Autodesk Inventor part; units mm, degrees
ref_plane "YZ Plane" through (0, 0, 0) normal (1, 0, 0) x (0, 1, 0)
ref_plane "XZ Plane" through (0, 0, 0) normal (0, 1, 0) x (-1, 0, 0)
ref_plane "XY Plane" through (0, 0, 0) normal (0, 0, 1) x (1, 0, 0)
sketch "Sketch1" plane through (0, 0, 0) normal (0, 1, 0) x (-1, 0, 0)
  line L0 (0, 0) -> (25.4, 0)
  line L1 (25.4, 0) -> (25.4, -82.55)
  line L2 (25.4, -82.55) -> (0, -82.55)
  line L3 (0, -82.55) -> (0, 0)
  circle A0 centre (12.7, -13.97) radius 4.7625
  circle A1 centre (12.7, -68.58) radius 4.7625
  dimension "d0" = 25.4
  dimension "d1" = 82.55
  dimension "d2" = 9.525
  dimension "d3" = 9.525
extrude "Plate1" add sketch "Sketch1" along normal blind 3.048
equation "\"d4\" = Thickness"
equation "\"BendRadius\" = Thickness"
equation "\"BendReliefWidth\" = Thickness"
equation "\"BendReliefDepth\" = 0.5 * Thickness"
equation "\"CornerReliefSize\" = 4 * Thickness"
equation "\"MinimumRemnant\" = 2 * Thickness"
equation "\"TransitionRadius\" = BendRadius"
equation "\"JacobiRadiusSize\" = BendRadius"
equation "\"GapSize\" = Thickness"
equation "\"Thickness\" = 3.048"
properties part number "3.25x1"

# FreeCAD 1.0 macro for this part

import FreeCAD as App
import Part
import Sketcher
Q = App.Units.Quantity

doc = App.newDocument("Part")
params = doc.addObject("Spreadsheet::Sheet", "Params")
for row, (alias, value) in enumerate([
    ("sketch1_width", "1 in"),
    ("sketch1_diameter", "0.375 in"),
    ("sketch1_height", "3.25 in"),
    ("pad1_length", "0.12 in"),
], start=1):
    params.set(f"A{row}", alias)
    params.set(f"B{row}", "=" + value)
    params.setAlias(f"B{row}", alias)

body = doc.addObject("PartDesign::Body", "Body")

# Sketch on XZ plane
sketch1 = doc.addObject("Sketcher::SketchObject", "Sketch")
body.addObject(sketch1)
sketch1.AttachmentSupport = (doc.XZ_Plane, [""])
sketch1.MapMode = "FlatFace"
sketch1.addGeometry(Part.LineSegment(App.Vector(-25.4, 0, 0), App.Vector(0, 0, 0)), False)
sketch1.addGeometry(Part.LineSegment(App.Vector(0, 0, 0), App.Vector(0, -82.5, 0)), False)
sketch1.addGeometry(Part.LineSegment(App.Vector(0, -82.5, 0), App.Vector(-25.4, -82.5, 0)), False)
sketch1.addGeometry(Part.LineSegment(App.Vector(-25.4, -82.5, 0), App.Vector(-25.4, 0, 0)), False)
sketch1.addGeometry(Part.Circle(App.Vector(-12.7, -68.6, 0), App.Vector(0, 0, 1), 4.8), False)
sketch1.addGeometry(Part.Circle(App.Vector(-12.7, -14, 0), App.Vector(0, 0, 1), 4.8), False)
sketch1.addConstraint(Sketcher.Constraint("Coincident", 0, 2, 1, 1))
sketch1.addConstraint(Sketcher.Constraint("Coincident", 1, 2, 2, 1))
sketch1.addConstraint(Sketcher.Constraint("Coincident", 2, 2, 3, 1))
sketch1.addConstraint(Sketcher.Constraint("Coincident", 3, 2, 0, 1))
sketch1.addConstraint(Sketcher.Constraint("Horizontal", 0))
sketch1.addConstraint(Sketcher.Constraint("Vertical", 1))
sketch1.addConstraint(Sketcher.Constraint("Horizontal", 2))
sketch1.addConstraint(Sketcher.Constraint("Vertical", 3))
sketch1.addConstraint(Sketcher.Constraint("Coincident", 0, 2, -1, 1))
sketch1.addConstraint(Sketcher.Constraint("Equal", 4, 5))
sketch1.addConstraint(Sketcher.Constraint("Vertical", 4, 3, 5, 3))
sketch1.addConstraint(Sketcher.Constraint("DistanceX", 0, 1, 0, 2, Q("1 in")))
sketch1.addConstraint(Sketcher.Constraint("Diameter", 4, Q("0.375 in")))
sketch1.addConstraint(Sketcher.Constraint("DistanceY", 1, 2, 1, 1, Q("3.25 in")))
sketch1.addConstraint(Sketcher.Constraint("DistanceX", 4, 3, -1, 1, Q("0.5 in")))
sketch1.addConstraint(Sketcher.Constraint("DistanceY", 4, 3, -1, 1, Q("2.7 in")))
sketch1.addConstraint(Sketcher.Constraint("DistanceY", 1, 2, 5, 3, Q("2.7 in")))
sketch1.setExpression("Constraints[11]", "Params.sketch1_width")
sketch1.setExpression("Constraints[12]", "Params.sketch1_diameter")
sketch1.setExpression("Constraints[13]", "Params.sketch1_height")
pad1 = doc.addObject("PartDesign::Pad", "Pad")
body.addObject(pad1)
pad1.Profile = sketch1
pad1.setExpression("Length", "Params.pad1_length")
pad1.Reversed = True

doc.recompute()
